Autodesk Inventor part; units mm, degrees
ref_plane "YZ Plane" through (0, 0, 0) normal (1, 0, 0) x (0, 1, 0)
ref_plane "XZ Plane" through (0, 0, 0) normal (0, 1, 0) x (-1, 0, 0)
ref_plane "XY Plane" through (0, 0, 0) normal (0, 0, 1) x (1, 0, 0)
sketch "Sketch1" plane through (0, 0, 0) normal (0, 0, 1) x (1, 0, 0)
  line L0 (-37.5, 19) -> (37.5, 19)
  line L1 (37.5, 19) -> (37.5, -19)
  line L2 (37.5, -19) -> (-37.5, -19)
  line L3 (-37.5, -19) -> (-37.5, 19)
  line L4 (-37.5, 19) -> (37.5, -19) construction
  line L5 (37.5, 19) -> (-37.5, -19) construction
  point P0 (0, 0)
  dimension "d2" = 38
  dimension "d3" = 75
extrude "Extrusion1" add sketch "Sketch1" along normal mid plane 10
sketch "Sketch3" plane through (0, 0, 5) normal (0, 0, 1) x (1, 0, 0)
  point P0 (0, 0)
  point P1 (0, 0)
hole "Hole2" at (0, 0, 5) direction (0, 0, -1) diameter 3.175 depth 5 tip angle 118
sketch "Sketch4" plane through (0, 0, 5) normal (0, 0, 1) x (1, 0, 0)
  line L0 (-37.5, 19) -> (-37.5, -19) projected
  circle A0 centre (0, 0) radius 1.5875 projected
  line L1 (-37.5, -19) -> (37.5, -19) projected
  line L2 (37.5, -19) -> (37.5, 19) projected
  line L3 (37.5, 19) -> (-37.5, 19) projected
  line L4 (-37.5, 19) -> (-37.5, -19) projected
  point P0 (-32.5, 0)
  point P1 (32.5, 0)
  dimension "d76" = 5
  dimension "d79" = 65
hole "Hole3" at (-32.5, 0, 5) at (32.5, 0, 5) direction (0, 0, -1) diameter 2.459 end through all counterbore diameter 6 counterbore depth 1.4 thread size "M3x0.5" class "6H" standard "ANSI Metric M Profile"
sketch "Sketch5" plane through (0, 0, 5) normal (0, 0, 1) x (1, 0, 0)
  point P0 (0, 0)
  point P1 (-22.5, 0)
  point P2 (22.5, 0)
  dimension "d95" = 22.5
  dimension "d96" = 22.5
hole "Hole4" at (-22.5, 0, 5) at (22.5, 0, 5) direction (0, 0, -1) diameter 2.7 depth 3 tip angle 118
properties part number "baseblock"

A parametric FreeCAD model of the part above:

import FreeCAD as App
import Part
import Sketcher

V = App.Vector
Q = App.Units.Quantity

doc = App.newDocument("Part")
body = doc.addObject("PartDesign::Body", "Body")

sketch1 = body.newObject("Sketcher::SketchObject", "Sketch")
sketch1.AttachmentSupport = (doc.getObject("XY_Plane"), [""])
sketch1.MapMode = "FlatFace"
sketch1.addGeometry([
    Part.LineSegment(V(38, 19, 0), V(-38, 19, 0)),
    Part.LineSegment(V(-38, 19, 0), V(-38, -19, 0)),
    Part.LineSegment(V(-38, -19, 0), V(38, -19, 0)),
    Part.LineSegment(V(38, -19, 0), V(38, 19, 0)),
], False)
sketch1.addConstraint([
    Sketcher.Constraint("Coincident", 0, 2, 1, 1),
    Sketcher.Constraint("Coincident", 1, 2, 2, 1),
    Sketcher.Constraint("Coincident", 2, 2, 3, 1),
    Sketcher.Constraint("Coincident", 3, 2, 0, 1),
    Sketcher.Constraint("Horizontal", 0),
    Sketcher.Constraint("Vertical", 1),
    Sketcher.Constraint("Horizontal", 2),
    Sketcher.Constraint("Vertical", 3),
    Sketcher.Constraint("Symmetric", 0, 2, 2, 2, -1, 1),
    Sketcher.Constraint("DistanceX", 0, 2, 0, 1, Q("75 mm")),
    Sketcher.Constraint("DistanceY", 1, 2, 1, 1, Q("38 mm")),
])
pad1 = body.newObject("PartDesign::Pad", "Pad")
pad1.Profile = sketch1
pad1.Length = 10
pad1.Midplane = True

sketch2 = body.newObject("Sketcher::SketchObject", "Sketch001")
sketch2.AttachmentSupport = (doc.getObject("XY_Plane"), [""])
sketch2.MapMode = "FlatFace"
sketch2.AttachmentOffset = App.Placement(V(0, 0, 5), App.Rotation())
sketch2.addGeometry(Part.Circle(V(0, 0, 0), V(0, 0, 1), 1.6), False)
sketch2.addConstraint([
    Sketcher.Constraint("Coincident", 0, 3, -1, 1),
    Sketcher.Constraint("Diameter", 0, Q("3.175 mm")),
])
doc.recompute()
hole = body.newObject("PartDesign::Hole", "Hole")
hole.Profile = sketch2
hole.ThreadType = "None"
hole.Diameter = 3.175
hole.DepthType = "Dimension"
hole.Depth = 5
hole.DrillPoint = "Angled"
hole.DrillPointAngle = 118

sketch3 = body.newObject("Sketcher::SketchObject", "Sketch002")
sketch3.AttachmentSupport = (doc.getObject("XY_Plane"), [""])
sketch3.MapMode = "FlatFace"
sketch3.AttachmentOffset = App.Placement(V(0, 0, 5), App.Rotation())
sketch3.addGeometry([
    Part.Circle(V(-32.5, 0, 0), V(0, 0, 1), 1.2),
    Part.Circle(V(32.5, 0, 0), V(0, 0, 1), 1.2),
], False)
sketch3.addConstraint([
    Sketcher.Constraint("Equal", 0, 1),
    Sketcher.Constraint("Symmetric", 0, 3, 1, 3, -1, 1),
    Sketcher.Constraint("PointOnObject", 0, 3, -1),
    Sketcher.Constraint("Diameter", 0, Q("2.459 mm")),
    Sketcher.Constraint("DistanceX", 0, 3, 1, 3, Q("65 mm")),
])
doc.recompute()
hole2 = body.newObject("PartDesign::Hole", "Hole001")
hole2.Profile = sketch3
hole2.ThreadType = "None"
hole2.Diameter = 2.459
hole2.DepthType = "ThroughAll"
hole2.HoleCutType = "Counterbore"
hole2.HoleCutDiameter = 6
hole2.HoleCutDepth = 1.4

sketch4 = body.newObject("Sketcher::SketchObject", "Sketch003")
sketch4.AttachmentSupport = (doc.getObject("XY_Plane"), [""])
sketch4.MapMode = "FlatFace"
sketch4.AttachmentOffset = App.Placement(V(0, 0, 5), App.Rotation())
sketch4.addGeometry([
    Part.Circle(V(-22.5, 0, 0), V(0, 0, 1), 1.4),
    Part.Circle(V(22.5, 0, 0), V(0, 0, 1), 1.4),
], False)
sketch4.addConstraint([
    Sketcher.Constraint("Equal", 0, 1),
    Sketcher.Constraint("Symmetric", 0, 3, 1, 3, -1, 1),
    Sketcher.Constraint("PointOnObject", 0, 3, -1),
    Sketcher.Constraint("Diameter", 0, Q("2.7 mm")),
    Sketcher.Constraint("DistanceX", 0, 3, 1, 3, Q("45 mm")),
])
doc.recompute()
hole3 = body.newObject("PartDesign::Hole", "Hole002")
hole3.Profile = sketch4
hole3.ThreadType = "None"
hole3.Diameter = 2.7
hole3.DepthType = "Dimension"
hole3.Depth = 3
hole3.DrillPoint = "Angled"
hole3.DrillPointAngle = 118

doc.recompute()
